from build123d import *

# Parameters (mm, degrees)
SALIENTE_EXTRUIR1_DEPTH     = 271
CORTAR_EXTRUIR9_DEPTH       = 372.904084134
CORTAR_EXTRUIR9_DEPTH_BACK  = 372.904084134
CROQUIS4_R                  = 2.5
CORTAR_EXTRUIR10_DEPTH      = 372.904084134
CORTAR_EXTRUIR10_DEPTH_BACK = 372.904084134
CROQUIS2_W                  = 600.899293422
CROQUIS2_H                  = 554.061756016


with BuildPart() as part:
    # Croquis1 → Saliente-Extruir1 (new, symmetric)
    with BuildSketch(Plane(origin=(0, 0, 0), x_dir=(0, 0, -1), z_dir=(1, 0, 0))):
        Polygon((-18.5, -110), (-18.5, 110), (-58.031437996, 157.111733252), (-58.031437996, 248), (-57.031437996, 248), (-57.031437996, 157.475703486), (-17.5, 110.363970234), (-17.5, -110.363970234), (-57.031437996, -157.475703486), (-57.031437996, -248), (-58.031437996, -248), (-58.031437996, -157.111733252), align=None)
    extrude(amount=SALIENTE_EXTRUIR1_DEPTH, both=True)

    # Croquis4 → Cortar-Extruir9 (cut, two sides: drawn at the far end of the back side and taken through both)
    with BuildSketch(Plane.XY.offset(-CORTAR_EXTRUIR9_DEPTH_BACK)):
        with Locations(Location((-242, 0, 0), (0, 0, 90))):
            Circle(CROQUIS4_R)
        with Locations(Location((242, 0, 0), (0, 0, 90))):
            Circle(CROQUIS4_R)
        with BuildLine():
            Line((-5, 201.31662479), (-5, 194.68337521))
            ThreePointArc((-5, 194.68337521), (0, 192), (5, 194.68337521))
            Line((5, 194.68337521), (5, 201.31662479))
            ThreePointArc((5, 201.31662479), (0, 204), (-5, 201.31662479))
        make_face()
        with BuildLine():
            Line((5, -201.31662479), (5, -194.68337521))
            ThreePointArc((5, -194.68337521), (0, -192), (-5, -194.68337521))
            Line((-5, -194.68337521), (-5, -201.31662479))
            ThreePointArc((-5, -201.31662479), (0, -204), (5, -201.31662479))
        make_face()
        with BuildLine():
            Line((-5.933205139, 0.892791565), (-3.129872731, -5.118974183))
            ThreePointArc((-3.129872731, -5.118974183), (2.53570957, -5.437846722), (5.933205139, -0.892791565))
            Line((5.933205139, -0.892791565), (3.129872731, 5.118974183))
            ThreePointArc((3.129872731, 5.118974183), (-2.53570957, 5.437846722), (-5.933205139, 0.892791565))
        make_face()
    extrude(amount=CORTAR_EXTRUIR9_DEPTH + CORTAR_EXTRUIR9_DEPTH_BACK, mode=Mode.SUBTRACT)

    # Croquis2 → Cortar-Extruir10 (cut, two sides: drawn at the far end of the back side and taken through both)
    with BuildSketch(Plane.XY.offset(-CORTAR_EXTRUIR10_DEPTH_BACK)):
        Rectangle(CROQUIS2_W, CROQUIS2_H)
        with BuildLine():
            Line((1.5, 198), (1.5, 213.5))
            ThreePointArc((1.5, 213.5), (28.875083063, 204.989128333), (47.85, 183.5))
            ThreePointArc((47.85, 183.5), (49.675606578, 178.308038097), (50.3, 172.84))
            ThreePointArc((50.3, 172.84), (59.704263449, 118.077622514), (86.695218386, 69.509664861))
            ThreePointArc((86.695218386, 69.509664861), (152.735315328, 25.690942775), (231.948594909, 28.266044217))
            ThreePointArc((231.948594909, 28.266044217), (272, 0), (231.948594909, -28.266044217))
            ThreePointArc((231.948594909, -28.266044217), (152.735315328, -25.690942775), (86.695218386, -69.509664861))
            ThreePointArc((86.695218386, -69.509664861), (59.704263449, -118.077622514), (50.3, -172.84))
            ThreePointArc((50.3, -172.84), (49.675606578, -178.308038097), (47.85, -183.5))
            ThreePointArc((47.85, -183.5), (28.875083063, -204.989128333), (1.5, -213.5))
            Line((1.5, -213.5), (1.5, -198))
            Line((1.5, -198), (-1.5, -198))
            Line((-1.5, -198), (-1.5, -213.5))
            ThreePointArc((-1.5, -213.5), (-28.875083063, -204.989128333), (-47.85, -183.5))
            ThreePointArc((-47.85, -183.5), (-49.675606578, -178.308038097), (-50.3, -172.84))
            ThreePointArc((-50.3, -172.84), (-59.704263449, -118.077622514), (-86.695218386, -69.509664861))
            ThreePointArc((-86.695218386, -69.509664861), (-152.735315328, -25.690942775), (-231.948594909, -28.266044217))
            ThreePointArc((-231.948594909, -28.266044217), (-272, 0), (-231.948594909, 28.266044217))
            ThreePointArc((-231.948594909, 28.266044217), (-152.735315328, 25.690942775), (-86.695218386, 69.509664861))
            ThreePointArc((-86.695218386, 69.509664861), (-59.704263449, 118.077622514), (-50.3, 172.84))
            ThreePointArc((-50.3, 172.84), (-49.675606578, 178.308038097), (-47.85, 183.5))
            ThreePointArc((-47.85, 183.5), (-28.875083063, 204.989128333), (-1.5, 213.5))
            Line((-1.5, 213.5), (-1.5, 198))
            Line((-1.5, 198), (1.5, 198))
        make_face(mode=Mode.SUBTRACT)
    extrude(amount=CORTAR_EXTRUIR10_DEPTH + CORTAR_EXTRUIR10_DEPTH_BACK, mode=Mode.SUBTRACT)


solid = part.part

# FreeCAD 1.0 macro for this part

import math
import FreeCAD as App
import Part
import Sketcher
Q = App.Units.Quantity

doc = App.newDocument("Part")
body = doc.addObject("PartDesign::Body", "Body")

# Sketch on YZ plane
sketch1 = body.newObject("Sketcher::SketchObject", "Sketch")
sketch1.AttachmentSupport = (doc.getObject("YZ_Plane"), [""])
sketch1.MapMode = "FlatFace"
sketch1.addGeometry([
    Part.LineSegment(App.Vector(110, 18.5, 0), App.Vector(-110, 18.5, 0)),  # 0
    Part.LineSegment(App.Vector(-110, 18.5, 0), App.Vector(-157.1, 58, 0)),  # 1
    Part.LineSegment(App.Vector(-157.1, 58, 0), App.Vector(-248, 58, 0)),  # 2
    Part.LineSegment(App.Vector(-248, 58, 0), App.Vector(-248, 57, 0)),  # 3
    Part.LineSegment(App.Vector(-248, 57, 0), App.Vector(-157.5, 57, 0)),  # 4
    Part.LineSegment(App.Vector(-157.5, 57, 0), App.Vector(-110.4, 17.5, 0)),  # 5
    Part.LineSegment(App.Vector(-110.4, 17.5, 0), App.Vector(110.4, 17.5, 0)),  # 6
    Part.LineSegment(App.Vector(110.4, 17.5, 0), App.Vector(157.5, 57, 0)),  # 7
    Part.LineSegment(App.Vector(157.5, 57, 0), App.Vector(248, 57, 0)),  # 8
    Part.LineSegment(App.Vector(248, 57, 0), App.Vector(248, 58, 0)),  # 9
    Part.LineSegment(App.Vector(248, 58, 0), App.Vector(157.1, 58, 0)),  # 10
    Part.LineSegment(App.Vector(157.1, 58, 0), App.Vector(110, 18.5, 0)),  # 11
], False)
sketch1.addConstraint([
    Sketcher.Constraint("Coincident", 0, 2, 1, 1),
    Sketcher.Constraint("Coincident", 1, 2, 2, 1),
    Sketcher.Constraint("Coincident", 2, 2, 3, 1),
    Sketcher.Constraint("Coincident", 3, 2, 4, 1),
    Sketcher.Constraint("Coincident", 4, 2, 5, 1),
    Sketcher.Constraint("Coincident", 5, 2, 6, 1),
    Sketcher.Constraint("Coincident", 6, 2, 7, 1),
    Sketcher.Constraint("Coincident", 7, 2, 8, 1),
    Sketcher.Constraint("Coincident", 8, 2, 9, 1),
    Sketcher.Constraint("Coincident", 9, 2, 10, 1),
    Sketcher.Constraint("Coincident", 10, 2, 11, 1),
    Sketcher.Constraint("Coincident", 11, 2, 0, 1),
    Sketcher.Constraint("Horizontal", 0),
    Sketcher.Constraint("Horizontal", 2),
    Sketcher.Constraint("Vertical", 3),
    Sketcher.Constraint("Horizontal", 4),
    Sketcher.Constraint("Horizontal", 6),
    Sketcher.Constraint("Horizontal", 8),
    Sketcher.Constraint("Vertical", 9),
    Sketcher.Constraint("Horizontal", 10),
    Sketcher.Constraint("Symmetric", 4, 2, 7, 2, -2),
    Sketcher.Constraint("Symmetric", 2, 2, 9, 2, -2),
    Sketcher.Constraint("Parallel", 1, 5),
    Sketcher.Constraint("Parallel", 7, 11),
    Sketcher.Constraint("Equal", 2, 10),
    Sketcher.Constraint("Equal", 1, 5),
    Sketcher.Constraint("Equal", 5, 7),
    Sketcher.Constraint("DistanceX", 0, 2, 0, 1, Q("220 mm")),
    Sketcher.Constraint("DistanceY", 3, 2, 3, 1, Q("1 mm")),
    Sketcher.Constraint("Angle", 1, Q("140 deg")),
    Sketcher.Constraint("DistanceX", 2, 2, -1, 1, Q("248 mm")),
    Sketcher.Constraint("Distance", 1, Q("61.5 mm")),
    Sketcher.Constraint("DistanceY", -1, 1, 0, 2, Q("18.5 mm")),
    Sketcher.Constraint("DistanceX", 6, 1, 6, 2, Q("220.72794 mm")),
])
pad1 = body.newObject("PartDesign::Pad", "Pad")
pad1.Profile = sketch1
pad1.Length = 542
pad1.Midplane = True

# Sketch on XY plane
sketch2 = body.newObject("Sketcher::SketchObject", "Sketch001")
sketch2.AttachmentSupport = (doc.getObject("XY_Plane"), [""])
sketch2.MapMode = "FlatFace"
sketch2.addGeometry([
    Part.Circle(App.Vector(-242, 0, 0), App.Vector(0, 0, 1), 2.5),  # 0
    Part.Circle(App.Vector(242, 0, 0), App.Vector(0, 0, 1), 2.5),  # 1
    Part.LineSegment(App.Vector(-5, 201.3, 0), App.Vector(-5, 194.7, 0)),  # 2
    Part.ArcOfCircle(Part.Circle(App.Vector(0, 198, 0), App.Vector(0, 0, 1), 6), math.radians(-146), math.radians(-34)),  # 3
    Part.LineSegment(App.Vector(5, 194.7, 0), App.Vector(5, 201.3, 0)),  # 4
    Part.ArcOfCircle(Part.Circle(App.Vector(0, 198, 0), App.Vector(0, 0, 1), 6), math.radians(34), math.radians(146)),  # 5
    Part.LineSegment(App.Vector(5, -201.3, 0), App.Vector(5, -194.7, 0)),  # 6
    Part.ArcOfCircle(Part.Circle(App.Vector(0, -198, 0), App.Vector(0, 0, 1), 6), math.radians(34), math.radians(146)),  # 7
    Part.LineSegment(App.Vector(-5, -194.7, 0), App.Vector(-5, -201.3, 0)),  # 8
    Part.ArcOfCircle(Part.Circle(App.Vector(0, -198, 0), App.Vector(0, 0, 1), 6), math.radians(-146), math.radians(-34)),  # 9
    Part.LineSegment(App.Vector(-5.9, 0.9, 0), App.Vector(-3.1, -5.1, 0)),  # 10
    Part.ArcOfCircle(Part.Circle(App.Vector(0, 0, 0), App.Vector(0, 0, 1), 6), math.radians(-121), math.radians(-9)),  # 11
    Part.LineSegment(App.Vector(5.9, -0.9, 0), App.Vector(3.1, 5.1, 0)),  # 12
    Part.ArcOfCircle(Part.Circle(App.Vector(0, 0, 0), App.Vector(0, 0, 1), 6), math.radians(59), math.radians(171)),  # 13
], False)
sketch2.addConstraint([
    Sketcher.Constraint("Coincident", 2, 2, 3, 1),
    Sketcher.Constraint("Coincident", 3, 2, 4, 1),
    Sketcher.Constraint("Coincident", 4, 2, 5, 1),
    Sketcher.Constraint("Coincident", 5, 2, 2, 1),
    Sketcher.Constraint("Coincident", 6, 2, 7, 1),
    Sketcher.Constraint("Coincident", 7, 2, 8, 1),
    Sketcher.Constraint("Coincident", 8, 2, 9, 1),
    Sketcher.Constraint("Coincident", 9, 2, 6, 1),
    Sketcher.Constraint("Coincident", 10, 2, 11, 1),
    Sketcher.Constraint("Coincident", 11, 2, 12, 1),
    Sketcher.Constraint("Coincident", 12, 2, 13, 1),
    Sketcher.Constraint("Coincident", 13, 2, 10, 1),
    Sketcher.Constraint("Vertical", 2),
    Sketcher.Constraint("Vertical", 4),
    Sketcher.Constraint("Vertical", 6),
    Sketcher.Constraint("Vertical", 8),
    Sketcher.Constraint("Coincident", 11, 3, -1, 1),
    Sketcher.Constraint("Coincident", 13, 3, -1, 1),
    Sketcher.Constraint("Coincident", 5, 3, 3, 3),
    Sketcher.Constraint("Coincident", 9, 3, 7, 3),
    Sketcher.Constraint("Equal", 0, 1),
    Sketcher.Constraint("Equal", 3, 5),
    Sketcher.Constraint("Equal", 5, 7),
    Sketcher.Constraint("Equal", 7, 9),
    Sketcher.Constraint("Equal", 9, 11),
    Sketcher.Constraint("Equal", 11, 13),
    Sketcher.Constraint("Symmetric", 0, 3, 1, 3, -1, 1),
    Sketcher.Constraint("Symmetric", 3, 3, 7, 3, -1, 1),
    Sketcher.Constraint("Symmetric", 2, 2, 3, 2, -2),
    Sketcher.Constraint("PointOnObject", 0, 3, -1),
    Sketcher.Constraint("Parallel", 10, 12),
    Sketcher.Constraint("Horizontal", 6, 2, 7, 2),
    Sketcher.Constraint("Vertical", 4, 2, 6, 2),
    Sketcher.Constraint("Equal", 10, 12),
    Sketcher.Constraint("Diameter", 0, Q("5 mm")),
    Sketcher.Constraint("Radius", 3, Q("6 mm")),
    Sketcher.Constraint("Angle", 10, Q("-65 deg")),
    Sketcher.Constraint("DistanceX", 0, 3, -1, 1, Q("242 mm")),
    Sketcher.Constraint("DistanceY", -1, 1, 3, 3, Q("198 mm")),
    Sketcher.Constraint("DistanceX", 2, 2, -1, 1, Q("5 mm")),
    Sketcher.Constraint("DistanceY", 7, 2, 10, 2, Q("189.564401 mm")),
])
pocket1 = body.newObject("PartDesign::Pocket", "Pocket")
pocket1.Profile = sketch2
pocket1.Type = "ThroughAll"
pocket1.Midplane = True

# Sketch on XY plane
sketch3 = body.newObject("Sketcher::SketchObject", "Sketch002")
sketch3.AttachmentSupport = (doc.getObject("XY_Plane"), [""])
sketch3.MapMode = "FlatFace"
sketch3.addGeometry([
    Part.LineSegment(App.Vector(-300.449647, 277.030878, 0), App.Vector(-300.449647, -277.030878, 0)),  # 0
    Part.LineSegment(App.Vector(-300.449647, -277.030878, 0), App.Vector(300.449647, -277.030878, 0)),  # 1
    Part.LineSegment(App.Vector(300.449647, -277.030878, 0), App.Vector(300.449647, 277.030878, 0)),  # 2
    Part.LineSegment(App.Vector(300.449647, 277.030878, 0), App.Vector(-300.449647, 277.030878, 0)),  # 3
    Part.LineSegment(App.Vector(-1.5, 198, 0), App.Vector(1.5, 198, 0)),  # 4
    Part.LineSegment(App.Vector(1.5, 198, 0), App.Vector(1.5, 213.5, 0)),  # 5
    Part.ArcOfCircle(Part.Circle(App.Vector(-0.010143, 160.361454, 0), App.Vector(0, 0, 1), 53.16), math.radians(25.801988), math.radians(88.372151)),  # 6
    Part.ArcOfCircle(Part.Circle(App.Vector(25.725129, 172.803473, 0), App.Vector(0, 0, 1), 24.574898), math.radians(0.085163), math.radians(25.801988)),  # 7
    Part.ArcOfCircle(Part.Circle(App.Vector(215.879885, 173.086114, 0), App.Vector(0, 0, 1), 165.580068), math.radians(-179.914837), math.radians(-141.278392)),  # 8
    Part.ArcOfCircle(Part.Circle(App.Vector(188.310792, 150.982029, 0), App.Vector(0, 0, 1), 130.24389), math.radians(-141.278392), math.radians(-70.424614)),  # 9
    Part.ArcOfCircle(Part.Circle(App.Vector(242, 0, 0), App.Vector(0, 0, 1), 30), math.radians(-109.575386), math.radians(109.575386)),  # 10
    Part.ArcOfCircle(Part.Circle(App.Vector(188.310792, -150.982029, 0), App.Vector(0, 0, 1), 130.24389), math.radians(70.424614), math.radians(141.278392)),  # 11
    Part.ArcOfCircle(Part.Circle(App.Vector(215.879885, -173.086114, 0), App.Vector(0, 0, 1), 165.580068), math.radians(141.278392), math.radians(179.914837)),  # 12
    Part.ArcOfCircle(Part.Circle(App.Vector(25.725129, -172.803473, 0), App.Vector(0, 0, 1), 24.574898), math.radians(-25.801988), math.radians(-0.085163)),  # 13
    Part.ArcOfCircle(Part.Circle(App.Vector(-0.010143, -160.361454, 0), App.Vector(0, 0, 1), 53.16), math.radians(-88.372151), math.radians(-25.801988)),  # 14
    Part.LineSegment(App.Vector(1.5, -213.5, 0), App.Vector(1.5, -198, 0)),  # 15
    Part.LineSegment(App.Vector(1.5, -198, 0), App.Vector(-1.5, -198, 0)),  # 16
    Part.LineSegment(App.Vector(-1.5, -198, 0), App.Vector(-1.5, -213.5, 0)),  # 17
    Part.ArcOfCircle(Part.Circle(App.Vector(0.010143, -160.361454, 0), App.Vector(0, 0, 1), 53.16), math.radians(-154.198012), math.radians(-91.627849)),  # 18
    Part.ArcOfCircle(Part.Circle(App.Vector(-25.725129, -172.803473, 0), App.Vector(0, 0, 1), 24.574898), math.radians(-179.914837), math.radians(-154.198012)),  # 19
    Part.ArcOfCircle(Part.Circle(App.Vector(-215.879885, -173.086114, 0), App.Vector(0, 0, 1), 165.580068), math.radians(0.085163), math.radians(38.721608)),  # 20
    Part.ArcOfCircle(Part.Circle(App.Vector(-188.310792, -150.982029, 0), App.Vector(0, 0, 1), 130.24389), math.radians(38.721608), math.radians(109.575386)),  # 21
    Part.ArcOfCircle(Part.Circle(App.Vector(-242, 0, 0), App.Vector(0, 0, 1), 30), math.radians(70.424614), math.radians(289.575386)),  # 22
    Part.ArcOfCircle(Part.Circle(App.Vector(-188.310792, 150.982029, 0), App.Vector(0, 0, 1), 130.24389), math.radians(-109.575386), math.radians(-38.721608)),  # 23
    Part.ArcOfCircle(Part.Circle(App.Vector(-215.879885, 173.086114, 0), App.Vector(0, 0, 1), 165.580068), math.radians(-38.721608), math.radians(-0.085163)),  # 24
    Part.ArcOfCircle(Part.Circle(App.Vector(-25.725129, 172.803473, 0), App.Vector(0, 0, 1), 24.574898), math.radians(154.198012), math.radians(179.914837)),  # 25
    Part.ArcOfCircle(Part.Circle(App.Vector(0.010143, 160.361454, 0), App.Vector(0, 0, 1), 53.16), math.radians(91.627849), math.radians(154.198012)),  # 26
    Part.LineSegment(App.Vector(-1.5, 213.5, 0), App.Vector(-1.5, 198, 0)),  # 27
], False)
sketch3.addConstraint([
    Sketcher.Constraint("Coincident", 0, 2, 1, 1),
    Sketcher.Constraint("Coincident", 1, 2, 2, 1),
    Sketcher.Constraint("Coincident", 2, 2, 3, 1),
    Sketcher.Constraint("Coincident", 3, 2, 0, 1),
    Sketcher.Constraint("Coincident", 4, 2, 5, 1),
    Sketcher.Constraint("Coincident", 5, 2, 6, 2),
    Sketcher.Constraint("Tangent", 6, 1, 7, 2),
    Sketcher.Constraint("Tangent", 7, 1, 8, 1),
    Sketcher.Constraint("Tangent", 8, 2, 9, 1),
    Sketcher.Constraint("Tangent", 9, 2, 10, 2),
    Sketcher.Constraint("Tangent", 10, 1, 11, 1),
    Sketcher.Constraint("Tangent", 11, 2, 12, 1),
    Sketcher.Constraint("Tangent", 12, 2, 13, 2),
    Sketcher.Constraint("Tangent", 13, 1, 14, 2),
    Sketcher.Constraint("Coincident", 14, 1, 15, 1),
    Sketcher.Constraint("Coincident", 15, 2, 16, 1),
    Sketcher.Constraint("Coincident", 16, 2, 17, 1),
    Sketcher.Constraint("Coincident", 17, 2, 18, 2),
    Sketcher.Constraint("Tangent", 18, 1, 19, 2),
    Sketcher.Constraint("Tangent", 19, 1, 20, 1),
    Sketcher.Constraint("Tangent", 20, 2, 21, 1),
    Sketcher.Constraint("Tangent", 21, 2, 22, 2),
    Sketcher.Constraint("Tangent", 22, 1, 23, 1),
    Sketcher.Constraint("Tangent", 23, 2, 24, 1),
    Sketcher.Constraint("Tangent", 24, 2, 25, 2),
    Sketcher.Constraint("Tangent", 25, 1, 26, 2),
    Sketcher.Constraint("Coincident", 26, 1, 27, 1),
    Sketcher.Constraint("Coincident", 27, 2, 4, 1),
    Sketcher.Constraint("Vertical", 0),
    Sketcher.Constraint("Horizontal", 1),
    Sketcher.Constraint("Vertical", 2),
    Sketcher.Constraint("Horizontal", 3),
    Sketcher.Constraint("Horizontal", 4),
    Sketcher.Constraint("Vertical", 5),
    Sketcher.Constraint("Vertical", 15),
    Sketcher.Constraint("Horizontal", 16),
    Sketcher.Constraint("Vertical", 17),
    Sketcher.Constraint("Vertical", 27),
    Sketcher.Constraint("Equal", 9, 11),
    Sketcher.Constraint("Equal", 8, 12),
    Sketcher.Constraint("Equal", 7, 13),
    Sketcher.Constraint("Equal", 6, 14),
    Sketcher.Constraint("Equal", 14, 18),
    Sketcher.Constraint("Equal", 13, 19),
    Sketcher.Constraint("Equal", 12, 20),
    Sketcher.Constraint("Equal", 11, 21),
    Sketcher.Constraint("Equal", 10, 22),
    Sketcher.Constraint("Equal", 21, 23),
    Sketcher.Constraint("Equal", 20, 24),
    Sketcher.Constraint("Equal", 19, 25),
    Sketcher.Constraint("Equal", 18, 26),
    Sketcher.Constraint("Symmetric", 6, 3, 18, 3, -1, 1),
    Sketcher.Constraint("Symmetric", 8, 3, 20, 3, -1, 1),
    Sketcher.Constraint("Symmetric", 10, 3, 22, 3, -1, 1),
    Sketcher.Constraint("Symmetric", 12, 3, 24, 3, -1, 1),
    Sketcher.Constraint("Symmetric", 14, 3, 26, 3, -1, 1),
    Sketcher.Constraint("Symmetric", 0, 2, 2, 2, -1, 1),
    Sketcher.Constraint("Symmetric", 4, 2, 16, 2, -1, 1),
    Sketcher.Constraint("Symmetric", 14, 3, 18, 3, -2),
    Sketcher.Constraint("Symmetric", 12, 3, 20, 3, -2),
    Sketcher.Constraint("PointOnObject", 10, 3, -1),
    Sketcher.Constraint("Horizontal", 14, 1, 17, 2),
    Sketcher.Constraint("Horizontal", 5, 2, 26, 1),
    Sketcher.Constraint("Radius", 10, Q("30 mm")),
    Sketcher.Constraint("DistanceX", 4, 1, 4, 2, Q("3 mm")),
    Sketcher.Constraint("Radius", 6, Q("53.16 mm")),
    Sketcher.Constraint("DistanceY", 5, 1, 5, 2, Q("15.5 mm")),
    Sketcher.Constraint("DistanceX", -1, 1, 10, 3, Q("242 mm")),
    Sketcher.Constraint("DistanceY", -1, 1, 4, 2, Q("198 mm")),
    Sketcher.Constraint("DistanceY", 6, 1, 5, 2, Q("30 mm")),
    Sketcher.Constraint("DistanceX", -1, 1, 7, 1, Q("50.3 mm")),
    Sketcher.Constraint("DistanceY", -1, 1, 7, 1, Q("172.84 mm")),
    Sketcher.Constraint("Radius", 9, Q("130.24389 mm")),
    Sketcher.Constraint("Radius", 7, Q("24.574898 mm")),
    Sketcher.Constraint("Radius", 8, Q("165.580068 mm")),
    Sketcher.Constraint("DistanceX", 1, 1, 1, 2, Q("600.899293 mm")),
    Sketcher.Constraint("DistanceY", 0, 2, 0, 1, Q("554.061756 mm")),
])
pocket2 = body.newObject("PartDesign::Pocket", "Pocket001")
pocket2.Profile = sketch3
pocket2.Type = "ThroughAll"
pocket2.Midplane = True

doc.recompute()
